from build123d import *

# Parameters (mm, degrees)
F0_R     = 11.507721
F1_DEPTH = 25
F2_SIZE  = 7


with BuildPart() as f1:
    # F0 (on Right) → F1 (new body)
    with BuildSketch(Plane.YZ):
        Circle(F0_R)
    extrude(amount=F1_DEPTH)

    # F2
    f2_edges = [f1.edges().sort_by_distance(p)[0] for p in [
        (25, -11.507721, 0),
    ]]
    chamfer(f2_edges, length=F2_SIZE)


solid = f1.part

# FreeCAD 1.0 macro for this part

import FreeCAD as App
import Part
import Sketcher
from FreeCAD import Vector
Q = App.Units.Quantity


def edges_at(feature, points):
    """Names of the edges that pass closest to the given points."""
    edges = feature.Shape.Edges
    near = lambda p: min(range(len(edges)), key=lambda i: edges[i].distToShape(Part.Vertex(*p))[0])
    return sorted({f"Edge{near(p) + 1}" for p in points})

doc = App.newDocument("Part")
body = doc.addObject("PartDesign::Body", "Body")

sketch1 = body.newObject("Sketcher::SketchObject", "Sketch")
sketch1.AttachmentSupport = (doc.getObject("YZ_Plane"), [""])
sketch1.MapMode = "FlatFace"
sketch1.addGeometry(Part.Circle(Vector(0, 0, 0), Vector(0, 0, 1), 12), False)
sketch1.addConstraint([
    Sketcher.Constraint("Coincident", 0, 3, -1, 1),
    Sketcher.Constraint("Diameter", 0, Q("23.015442 mm")),
])
pad1 = body.newObject("PartDesign::Pad", "Pad")
pad1.Profile = sketch1
pad1.Length = 25
doc.recompute()

chamfer = body.newObject("PartDesign::Chamfer", "Chamfer")
chamfer.Base = (pad1, edges_at(pad1, [(25, -11.508, 0)]))
chamfer.Size = 7

doc.recompute()
